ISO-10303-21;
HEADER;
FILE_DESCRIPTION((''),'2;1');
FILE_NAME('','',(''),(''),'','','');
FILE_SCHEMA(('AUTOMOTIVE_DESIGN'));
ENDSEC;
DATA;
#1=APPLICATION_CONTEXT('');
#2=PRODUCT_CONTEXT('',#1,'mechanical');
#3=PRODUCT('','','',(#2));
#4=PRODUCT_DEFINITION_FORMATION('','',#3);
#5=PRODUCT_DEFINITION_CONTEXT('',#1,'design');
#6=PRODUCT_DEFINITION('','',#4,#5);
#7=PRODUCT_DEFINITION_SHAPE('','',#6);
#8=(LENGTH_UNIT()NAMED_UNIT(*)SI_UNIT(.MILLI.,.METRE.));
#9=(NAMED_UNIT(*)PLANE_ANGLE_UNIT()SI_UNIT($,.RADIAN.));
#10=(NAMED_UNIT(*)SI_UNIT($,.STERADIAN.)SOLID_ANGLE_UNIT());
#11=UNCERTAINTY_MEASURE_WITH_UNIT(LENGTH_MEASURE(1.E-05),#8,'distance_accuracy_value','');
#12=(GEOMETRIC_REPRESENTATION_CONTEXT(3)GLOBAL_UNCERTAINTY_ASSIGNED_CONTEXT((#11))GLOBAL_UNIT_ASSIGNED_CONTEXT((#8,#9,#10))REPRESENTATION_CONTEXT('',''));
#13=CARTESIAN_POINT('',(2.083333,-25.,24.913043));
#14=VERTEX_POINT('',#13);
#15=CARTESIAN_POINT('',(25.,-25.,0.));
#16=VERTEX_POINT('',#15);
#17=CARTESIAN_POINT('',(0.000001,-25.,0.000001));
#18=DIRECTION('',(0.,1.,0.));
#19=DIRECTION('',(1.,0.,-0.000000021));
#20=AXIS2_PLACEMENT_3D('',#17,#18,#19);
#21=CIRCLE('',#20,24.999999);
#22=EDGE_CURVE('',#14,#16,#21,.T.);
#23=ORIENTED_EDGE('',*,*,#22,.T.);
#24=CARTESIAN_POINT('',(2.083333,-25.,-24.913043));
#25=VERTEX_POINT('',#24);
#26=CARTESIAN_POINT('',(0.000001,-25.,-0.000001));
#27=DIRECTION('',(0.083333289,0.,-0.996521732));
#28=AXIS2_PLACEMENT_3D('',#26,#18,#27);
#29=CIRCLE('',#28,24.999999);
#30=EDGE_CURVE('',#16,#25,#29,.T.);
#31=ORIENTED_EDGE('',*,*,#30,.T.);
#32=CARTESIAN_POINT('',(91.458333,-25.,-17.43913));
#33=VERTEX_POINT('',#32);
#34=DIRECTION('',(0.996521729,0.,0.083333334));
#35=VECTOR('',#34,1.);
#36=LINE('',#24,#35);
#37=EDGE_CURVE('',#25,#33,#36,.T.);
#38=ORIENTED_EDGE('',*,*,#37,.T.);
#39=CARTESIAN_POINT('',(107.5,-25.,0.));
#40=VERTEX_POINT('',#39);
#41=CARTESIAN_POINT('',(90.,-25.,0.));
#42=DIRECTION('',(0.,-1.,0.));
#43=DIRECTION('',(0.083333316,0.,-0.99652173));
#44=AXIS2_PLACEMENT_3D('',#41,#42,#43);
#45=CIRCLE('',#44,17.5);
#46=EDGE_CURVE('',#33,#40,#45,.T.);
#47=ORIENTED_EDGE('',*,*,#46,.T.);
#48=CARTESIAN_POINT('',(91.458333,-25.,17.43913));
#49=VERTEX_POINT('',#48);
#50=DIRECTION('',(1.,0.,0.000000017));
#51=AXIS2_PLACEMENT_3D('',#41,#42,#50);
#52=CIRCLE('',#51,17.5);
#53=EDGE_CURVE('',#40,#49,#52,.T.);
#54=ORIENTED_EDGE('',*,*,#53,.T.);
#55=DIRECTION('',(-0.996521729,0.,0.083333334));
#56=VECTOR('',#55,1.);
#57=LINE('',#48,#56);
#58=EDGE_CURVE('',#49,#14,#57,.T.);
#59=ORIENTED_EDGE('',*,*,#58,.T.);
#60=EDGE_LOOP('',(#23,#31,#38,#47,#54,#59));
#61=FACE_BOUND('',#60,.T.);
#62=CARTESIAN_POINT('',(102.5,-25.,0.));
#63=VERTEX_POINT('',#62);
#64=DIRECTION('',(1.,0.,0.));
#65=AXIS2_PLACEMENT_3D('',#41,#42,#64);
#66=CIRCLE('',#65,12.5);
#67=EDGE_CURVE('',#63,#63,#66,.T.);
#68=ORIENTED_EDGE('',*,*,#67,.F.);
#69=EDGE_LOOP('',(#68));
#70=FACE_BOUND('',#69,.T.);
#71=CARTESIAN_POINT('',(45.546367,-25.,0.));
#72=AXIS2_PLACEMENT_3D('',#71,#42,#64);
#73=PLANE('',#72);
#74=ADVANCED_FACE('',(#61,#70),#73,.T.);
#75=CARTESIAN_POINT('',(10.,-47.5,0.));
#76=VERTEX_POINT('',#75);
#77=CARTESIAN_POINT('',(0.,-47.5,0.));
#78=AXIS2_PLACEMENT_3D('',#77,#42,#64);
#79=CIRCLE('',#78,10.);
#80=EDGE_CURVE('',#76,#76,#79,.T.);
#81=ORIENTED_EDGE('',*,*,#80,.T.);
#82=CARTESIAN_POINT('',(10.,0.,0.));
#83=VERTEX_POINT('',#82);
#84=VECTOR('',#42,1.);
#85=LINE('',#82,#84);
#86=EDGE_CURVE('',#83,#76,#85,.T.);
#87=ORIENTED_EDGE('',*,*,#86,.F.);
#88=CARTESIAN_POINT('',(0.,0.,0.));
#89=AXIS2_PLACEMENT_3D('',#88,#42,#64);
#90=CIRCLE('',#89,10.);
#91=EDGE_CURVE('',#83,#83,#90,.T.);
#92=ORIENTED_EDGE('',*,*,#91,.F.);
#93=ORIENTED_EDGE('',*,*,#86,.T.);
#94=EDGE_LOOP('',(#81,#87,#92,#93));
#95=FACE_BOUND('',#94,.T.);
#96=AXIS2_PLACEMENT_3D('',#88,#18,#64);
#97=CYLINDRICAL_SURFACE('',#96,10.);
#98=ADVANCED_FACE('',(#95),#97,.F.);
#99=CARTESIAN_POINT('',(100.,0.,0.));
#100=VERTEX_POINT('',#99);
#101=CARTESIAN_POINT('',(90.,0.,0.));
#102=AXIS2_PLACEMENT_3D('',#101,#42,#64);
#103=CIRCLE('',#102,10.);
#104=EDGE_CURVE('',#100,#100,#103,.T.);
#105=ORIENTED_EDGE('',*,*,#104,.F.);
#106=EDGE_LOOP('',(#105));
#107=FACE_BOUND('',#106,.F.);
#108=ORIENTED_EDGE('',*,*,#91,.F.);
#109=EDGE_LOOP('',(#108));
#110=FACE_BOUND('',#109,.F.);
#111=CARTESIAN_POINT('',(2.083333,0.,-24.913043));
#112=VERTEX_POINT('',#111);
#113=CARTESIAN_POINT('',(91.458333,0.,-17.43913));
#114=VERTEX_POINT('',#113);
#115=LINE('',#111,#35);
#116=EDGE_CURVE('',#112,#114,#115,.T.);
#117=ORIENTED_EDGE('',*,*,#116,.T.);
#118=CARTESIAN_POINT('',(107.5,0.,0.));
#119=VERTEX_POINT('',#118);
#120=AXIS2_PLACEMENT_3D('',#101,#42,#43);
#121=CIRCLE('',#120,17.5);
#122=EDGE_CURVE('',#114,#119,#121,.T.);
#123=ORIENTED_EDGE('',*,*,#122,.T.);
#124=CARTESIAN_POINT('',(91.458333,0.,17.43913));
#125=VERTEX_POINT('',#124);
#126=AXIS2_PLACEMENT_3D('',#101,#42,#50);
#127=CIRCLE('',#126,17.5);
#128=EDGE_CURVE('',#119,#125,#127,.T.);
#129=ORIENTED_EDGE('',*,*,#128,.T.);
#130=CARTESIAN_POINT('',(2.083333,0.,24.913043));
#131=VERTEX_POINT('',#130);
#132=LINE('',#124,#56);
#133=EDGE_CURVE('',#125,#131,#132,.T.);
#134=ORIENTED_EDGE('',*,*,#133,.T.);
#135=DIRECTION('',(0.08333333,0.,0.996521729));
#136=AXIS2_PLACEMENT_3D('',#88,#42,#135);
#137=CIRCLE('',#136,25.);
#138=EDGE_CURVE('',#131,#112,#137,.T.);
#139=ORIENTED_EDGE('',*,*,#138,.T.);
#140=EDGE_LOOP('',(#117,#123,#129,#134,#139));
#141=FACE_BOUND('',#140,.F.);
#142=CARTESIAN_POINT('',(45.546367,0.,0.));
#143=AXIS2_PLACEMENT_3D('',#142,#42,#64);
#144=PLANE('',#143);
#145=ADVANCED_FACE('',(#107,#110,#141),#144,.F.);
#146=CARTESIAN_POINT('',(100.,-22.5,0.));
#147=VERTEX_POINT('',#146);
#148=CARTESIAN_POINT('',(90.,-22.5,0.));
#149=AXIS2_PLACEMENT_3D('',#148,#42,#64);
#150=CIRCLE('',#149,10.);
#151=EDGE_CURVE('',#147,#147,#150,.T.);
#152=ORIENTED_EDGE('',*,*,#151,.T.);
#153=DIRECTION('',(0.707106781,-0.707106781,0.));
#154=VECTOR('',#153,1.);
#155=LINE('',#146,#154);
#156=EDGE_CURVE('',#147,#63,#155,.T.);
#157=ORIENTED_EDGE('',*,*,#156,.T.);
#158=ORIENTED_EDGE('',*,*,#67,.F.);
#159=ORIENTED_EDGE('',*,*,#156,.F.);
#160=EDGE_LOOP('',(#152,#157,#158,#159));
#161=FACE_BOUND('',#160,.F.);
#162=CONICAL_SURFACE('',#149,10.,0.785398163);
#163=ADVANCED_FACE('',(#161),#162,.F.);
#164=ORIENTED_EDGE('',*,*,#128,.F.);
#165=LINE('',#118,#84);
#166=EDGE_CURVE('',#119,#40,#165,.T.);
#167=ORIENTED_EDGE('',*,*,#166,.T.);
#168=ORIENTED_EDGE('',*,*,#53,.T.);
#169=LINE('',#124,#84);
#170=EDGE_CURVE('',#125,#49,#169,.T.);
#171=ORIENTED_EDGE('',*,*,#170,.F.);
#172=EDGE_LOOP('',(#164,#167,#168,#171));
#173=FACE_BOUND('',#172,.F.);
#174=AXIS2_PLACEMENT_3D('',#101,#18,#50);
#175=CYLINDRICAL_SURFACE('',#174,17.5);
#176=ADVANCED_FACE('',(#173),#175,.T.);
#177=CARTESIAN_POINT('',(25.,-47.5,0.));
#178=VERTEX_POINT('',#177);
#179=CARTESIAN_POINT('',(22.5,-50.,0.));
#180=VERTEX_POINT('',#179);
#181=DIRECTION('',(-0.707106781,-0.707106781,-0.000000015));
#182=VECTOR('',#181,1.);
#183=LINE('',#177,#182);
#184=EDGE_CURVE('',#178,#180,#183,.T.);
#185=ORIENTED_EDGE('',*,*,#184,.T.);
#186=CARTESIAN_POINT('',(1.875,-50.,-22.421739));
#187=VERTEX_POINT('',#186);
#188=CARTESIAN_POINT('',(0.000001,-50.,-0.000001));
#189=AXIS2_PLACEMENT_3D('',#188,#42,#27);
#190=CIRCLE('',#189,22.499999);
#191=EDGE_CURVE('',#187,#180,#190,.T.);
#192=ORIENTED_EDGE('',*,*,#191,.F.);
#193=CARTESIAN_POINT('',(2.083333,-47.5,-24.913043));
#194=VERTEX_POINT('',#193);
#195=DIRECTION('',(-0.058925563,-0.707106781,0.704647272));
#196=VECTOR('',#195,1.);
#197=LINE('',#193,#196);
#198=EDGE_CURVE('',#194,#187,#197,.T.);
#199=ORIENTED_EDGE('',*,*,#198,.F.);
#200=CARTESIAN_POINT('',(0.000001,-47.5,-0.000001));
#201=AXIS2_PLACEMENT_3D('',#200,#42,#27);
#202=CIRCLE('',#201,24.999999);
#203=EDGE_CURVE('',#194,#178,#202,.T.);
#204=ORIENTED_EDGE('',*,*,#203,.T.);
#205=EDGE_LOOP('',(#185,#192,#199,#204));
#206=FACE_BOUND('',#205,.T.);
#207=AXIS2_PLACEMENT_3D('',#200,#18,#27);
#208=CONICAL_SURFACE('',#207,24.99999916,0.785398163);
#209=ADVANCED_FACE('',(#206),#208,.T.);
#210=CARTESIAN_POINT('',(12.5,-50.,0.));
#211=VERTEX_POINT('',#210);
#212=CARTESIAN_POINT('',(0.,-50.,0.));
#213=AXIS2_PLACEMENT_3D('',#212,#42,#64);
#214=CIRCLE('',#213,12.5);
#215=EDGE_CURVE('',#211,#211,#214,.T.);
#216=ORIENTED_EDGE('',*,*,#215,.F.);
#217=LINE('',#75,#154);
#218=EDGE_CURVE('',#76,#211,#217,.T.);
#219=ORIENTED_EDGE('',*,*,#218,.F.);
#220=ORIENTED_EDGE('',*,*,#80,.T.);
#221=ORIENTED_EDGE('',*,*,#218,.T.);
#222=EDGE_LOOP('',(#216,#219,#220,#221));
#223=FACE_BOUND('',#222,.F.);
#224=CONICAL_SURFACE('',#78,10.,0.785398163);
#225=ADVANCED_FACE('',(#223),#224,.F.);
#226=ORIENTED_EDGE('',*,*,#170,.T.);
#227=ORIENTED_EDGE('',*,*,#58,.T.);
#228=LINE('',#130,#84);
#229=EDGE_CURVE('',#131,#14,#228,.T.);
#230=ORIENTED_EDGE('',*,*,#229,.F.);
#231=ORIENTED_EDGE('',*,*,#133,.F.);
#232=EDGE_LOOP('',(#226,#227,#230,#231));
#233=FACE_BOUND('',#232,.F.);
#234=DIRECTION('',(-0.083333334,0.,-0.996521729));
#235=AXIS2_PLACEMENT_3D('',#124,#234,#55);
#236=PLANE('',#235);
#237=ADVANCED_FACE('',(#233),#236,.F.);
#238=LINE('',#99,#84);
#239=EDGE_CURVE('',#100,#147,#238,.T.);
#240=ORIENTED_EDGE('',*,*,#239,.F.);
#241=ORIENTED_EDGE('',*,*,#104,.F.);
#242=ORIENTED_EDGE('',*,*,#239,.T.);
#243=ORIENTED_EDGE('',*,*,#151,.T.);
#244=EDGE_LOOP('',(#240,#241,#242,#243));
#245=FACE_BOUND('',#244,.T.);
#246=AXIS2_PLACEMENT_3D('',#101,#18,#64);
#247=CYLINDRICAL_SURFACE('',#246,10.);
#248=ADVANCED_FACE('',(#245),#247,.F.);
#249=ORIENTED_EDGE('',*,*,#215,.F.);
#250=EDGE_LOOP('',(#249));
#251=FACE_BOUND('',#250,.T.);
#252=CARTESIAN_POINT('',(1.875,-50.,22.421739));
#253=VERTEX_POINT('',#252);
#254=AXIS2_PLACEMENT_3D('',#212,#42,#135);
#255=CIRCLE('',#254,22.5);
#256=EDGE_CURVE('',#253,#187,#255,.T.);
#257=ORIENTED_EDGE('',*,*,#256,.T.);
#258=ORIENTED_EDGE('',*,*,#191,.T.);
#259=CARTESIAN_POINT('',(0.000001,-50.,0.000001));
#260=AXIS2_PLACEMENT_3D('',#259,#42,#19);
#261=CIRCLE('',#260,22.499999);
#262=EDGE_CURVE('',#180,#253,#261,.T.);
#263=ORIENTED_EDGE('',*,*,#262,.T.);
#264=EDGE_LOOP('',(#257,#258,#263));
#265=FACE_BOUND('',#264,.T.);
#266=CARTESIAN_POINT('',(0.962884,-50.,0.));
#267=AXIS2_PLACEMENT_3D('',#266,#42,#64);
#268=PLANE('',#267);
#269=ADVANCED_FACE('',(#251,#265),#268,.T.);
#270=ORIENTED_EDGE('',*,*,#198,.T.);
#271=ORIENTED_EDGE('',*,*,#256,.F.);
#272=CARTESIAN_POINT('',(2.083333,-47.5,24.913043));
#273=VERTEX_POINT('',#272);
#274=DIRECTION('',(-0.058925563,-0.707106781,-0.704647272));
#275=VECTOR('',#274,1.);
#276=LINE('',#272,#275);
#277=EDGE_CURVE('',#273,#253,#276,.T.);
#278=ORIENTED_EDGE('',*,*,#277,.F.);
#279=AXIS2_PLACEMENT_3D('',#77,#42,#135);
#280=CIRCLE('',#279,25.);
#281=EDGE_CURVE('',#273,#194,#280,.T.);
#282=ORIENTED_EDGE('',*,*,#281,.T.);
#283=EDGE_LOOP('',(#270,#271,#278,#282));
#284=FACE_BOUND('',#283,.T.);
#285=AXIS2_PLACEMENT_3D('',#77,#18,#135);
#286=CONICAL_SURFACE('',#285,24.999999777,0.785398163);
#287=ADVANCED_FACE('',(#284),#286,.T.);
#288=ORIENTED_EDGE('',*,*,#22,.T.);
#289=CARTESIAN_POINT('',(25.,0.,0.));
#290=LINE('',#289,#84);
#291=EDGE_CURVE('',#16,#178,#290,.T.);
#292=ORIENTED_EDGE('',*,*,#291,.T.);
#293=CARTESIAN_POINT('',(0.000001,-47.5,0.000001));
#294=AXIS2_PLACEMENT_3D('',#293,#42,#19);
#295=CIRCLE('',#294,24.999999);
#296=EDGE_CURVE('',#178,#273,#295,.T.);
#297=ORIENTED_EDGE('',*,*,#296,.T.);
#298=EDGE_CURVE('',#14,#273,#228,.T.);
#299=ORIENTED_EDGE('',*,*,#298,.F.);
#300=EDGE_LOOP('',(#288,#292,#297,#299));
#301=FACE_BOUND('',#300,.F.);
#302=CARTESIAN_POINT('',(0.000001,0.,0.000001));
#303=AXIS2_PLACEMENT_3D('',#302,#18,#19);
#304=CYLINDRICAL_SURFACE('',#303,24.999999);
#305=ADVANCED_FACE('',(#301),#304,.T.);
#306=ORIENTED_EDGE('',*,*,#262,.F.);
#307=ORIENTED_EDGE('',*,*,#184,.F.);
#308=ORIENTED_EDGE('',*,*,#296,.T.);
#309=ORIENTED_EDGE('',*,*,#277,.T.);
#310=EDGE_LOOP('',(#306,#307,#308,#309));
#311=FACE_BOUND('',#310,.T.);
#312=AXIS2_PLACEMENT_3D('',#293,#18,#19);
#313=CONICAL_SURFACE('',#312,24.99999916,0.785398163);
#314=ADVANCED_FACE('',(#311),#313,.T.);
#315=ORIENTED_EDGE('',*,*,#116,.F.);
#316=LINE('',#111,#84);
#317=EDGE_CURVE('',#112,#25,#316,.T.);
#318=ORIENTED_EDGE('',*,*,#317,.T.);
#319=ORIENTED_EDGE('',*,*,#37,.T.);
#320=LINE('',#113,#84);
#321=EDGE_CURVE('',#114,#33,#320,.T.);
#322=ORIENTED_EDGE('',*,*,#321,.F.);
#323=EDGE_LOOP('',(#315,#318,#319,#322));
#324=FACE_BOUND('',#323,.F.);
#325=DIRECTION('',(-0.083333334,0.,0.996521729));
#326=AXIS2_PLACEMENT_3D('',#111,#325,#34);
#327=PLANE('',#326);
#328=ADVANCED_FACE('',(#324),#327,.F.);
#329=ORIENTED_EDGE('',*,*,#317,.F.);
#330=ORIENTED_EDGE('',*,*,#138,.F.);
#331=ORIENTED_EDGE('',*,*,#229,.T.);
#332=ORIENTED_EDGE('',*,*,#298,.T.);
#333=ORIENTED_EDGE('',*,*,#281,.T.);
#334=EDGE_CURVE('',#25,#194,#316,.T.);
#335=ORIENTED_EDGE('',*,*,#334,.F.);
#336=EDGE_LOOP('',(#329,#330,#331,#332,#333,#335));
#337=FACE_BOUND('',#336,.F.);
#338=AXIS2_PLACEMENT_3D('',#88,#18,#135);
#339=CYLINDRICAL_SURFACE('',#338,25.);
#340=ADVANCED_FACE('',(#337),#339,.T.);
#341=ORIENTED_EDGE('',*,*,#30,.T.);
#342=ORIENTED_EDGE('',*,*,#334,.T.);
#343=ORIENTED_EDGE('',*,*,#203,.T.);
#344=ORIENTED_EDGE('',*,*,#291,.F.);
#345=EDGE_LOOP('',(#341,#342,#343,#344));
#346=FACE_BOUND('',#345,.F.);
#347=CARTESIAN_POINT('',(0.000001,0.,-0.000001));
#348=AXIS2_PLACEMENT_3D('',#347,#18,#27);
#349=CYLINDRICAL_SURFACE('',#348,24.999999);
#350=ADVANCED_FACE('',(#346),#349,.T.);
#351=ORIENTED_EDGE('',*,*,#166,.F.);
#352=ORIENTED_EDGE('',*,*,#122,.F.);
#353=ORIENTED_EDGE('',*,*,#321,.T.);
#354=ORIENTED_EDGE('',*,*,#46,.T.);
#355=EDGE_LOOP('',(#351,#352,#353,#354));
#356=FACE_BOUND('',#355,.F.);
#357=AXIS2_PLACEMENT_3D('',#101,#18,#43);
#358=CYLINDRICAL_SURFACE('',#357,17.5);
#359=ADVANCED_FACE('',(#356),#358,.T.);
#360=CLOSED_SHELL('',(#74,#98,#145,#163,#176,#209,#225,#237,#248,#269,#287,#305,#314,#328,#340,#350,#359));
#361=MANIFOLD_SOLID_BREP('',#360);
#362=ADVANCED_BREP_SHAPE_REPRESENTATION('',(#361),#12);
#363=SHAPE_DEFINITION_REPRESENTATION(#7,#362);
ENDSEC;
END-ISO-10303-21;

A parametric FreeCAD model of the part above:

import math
import FreeCAD as App
import Part
import Sketcher
from FreeCAD import Vector


def edges_at(feature, points):
    """Names of the edges that pass closest to the given points."""
    edges = feature.Shape.Edges
    near = lambda p: min(range(len(edges)), key=lambda i: edges[i].distToShape(Part.Vertex(*p))[0])
    return sorted({f"Edge{near(p) + 1}" for p in points})

doc = App.newDocument("Part")
body = doc.addObject("PartDesign::Body", "Body")

# Sketch on XZ plane
sketch1 = body.newObject("Sketcher::SketchObject", "Sketch")
sketch1.AttachmentSupport = (doc.getObject("XZ_Plane"), [""])
sketch1.MapMode = "FlatFace"
sketch1.addGeometry([
    Part.LineSegment(Vector(2, -25, 0), Vector(91, -17, 0)),  # 0
    Part.ArcOfCircle(Part.Circle(Vector(90, 0, 0), Vector(0, 0, 1), 18), math.radians(-85), math.radians(0)),  # 1
    Part.ArcOfCircle(Part.Circle(Vector(90, 0, 0), Vector(0, 0, 1), 18), math.radians(0), math.radians(85)),  # 2
    Part.LineSegment(Vector(91, 17, 0), Vector(2, 25, 0)),  # 3
    Part.ArcOfCircle(Part.Circle(Vector(0, 0, 0), Vector(0, 0, 1), 25), math.radians(85), math.radians(275)),  # 4
    Part.Circle(Vector(0, 0, 0), Vector(0, 0, 1), 10),  # 5
    Part.Circle(Vector(90, 0, 0), Vector(0, 0, 1), 10),  # 6
], False)
sketch1.addConstraint([
    Sketcher.Constraint("Tangent", 0, 2, 1, 1),
    Sketcher.Constraint("Tangent", 1, 2, 2, 1),
    Sketcher.Constraint("Tangent", 2, 2, 3, 1),
    Sketcher.Constraint("Tangent", 3, 2, 4, 1),
    Sketcher.Constraint("Tangent", 4, 2, 0, 1),
    Sketcher.Constraint("Coincident", 4, 3, -1, 1),
    Sketcher.Constraint("Coincident", 5, 3, -1, 1),
    Sketcher.Constraint("Coincident", 6, 3, 1, 3),
    Sketcher.Constraint("Equal", 1, 2),
    Sketcher.Constraint("Equal", 5, 6),
    Sketcher.Constraint("PointOnObject", 1, 3, -1),
    Sketcher.Constraint("PointOnObject", 1, 2, -1),
    Sketcher.Constraint("Diameter", 5, 20.0),
    Sketcher.Constraint("Radius", 4, 25.0),
    Sketcher.Constraint("Radius", 1, 17.5),
    Sketcher.Constraint("DistanceX", -1, 1, 1, 3, 90.0),
])
pad1 = body.newObject("PartDesign::Pad", "Pad")
pad1.Profile = sketch1
pad1.Length = 25

# Sketch on XZ plane
sketch2 = body.newObject("Sketcher::SketchObject", "Sketch001")
sketch2.AttachmentSupport = (doc.getObject("XZ_Plane"), [""])
sketch2.MapMode = "FlatFace"
sketch2.addGeometry([
    Part.ArcOfCircle(Part.Circle(Vector(0, 0, 0), Vector(0, 0, 1), 25), math.radians(-85), math.radians(0)),
    Part.ArcOfCircle(Part.Circle(Vector(0, 0, 0), Vector(0, 0, 1), 25), math.radians(0), math.radians(85)),
    Part.ArcOfCircle(Part.Circle(Vector(0, 0, 0), Vector(0, 0, 1), 25), math.radians(85), math.radians(275)),
    Part.Circle(Vector(0, 0, 0), Vector(0, 0, 1), 10),
], False)
sketch2.addConstraint([
    Sketcher.Constraint("Tangent", 0, 2, 1, 1),
    Sketcher.Constraint("Tangent", 1, 2, 2, 1),
    Sketcher.Constraint("Tangent", 2, 2, 0, 1),
    Sketcher.Constraint("Coincident", 0, 3, -1, 1),
    Sketcher.Constraint("Coincident", 3, 3, -1, 1),
    Sketcher.Constraint("PointOnObject", 0, 2, -1),
    Sketcher.Constraint("Vertical", 1, 2, 2, 2),
    Sketcher.Constraint("Diameter", 3, 20.0),
    Sketcher.Constraint("Radius", 0, 24.999999),
    Sketcher.Constraint("DistanceX", -1, 1, 1, 2, 2.083333),
])
pad2 = body.newObject("PartDesign::Pad", "Pad001")
pad2.Profile = sketch2
pad2.Length = 50
doc.recompute()

chamfer = body.newObject("PartDesign::Chamfer", "Chamfer")
chamfer.Base = (pad2, edges_at(pad2, [(-25, -50, 0), (-10, -50, 0), (80, -25, 0)]))
chamfer.Size = 2.5

doc.recompute()
